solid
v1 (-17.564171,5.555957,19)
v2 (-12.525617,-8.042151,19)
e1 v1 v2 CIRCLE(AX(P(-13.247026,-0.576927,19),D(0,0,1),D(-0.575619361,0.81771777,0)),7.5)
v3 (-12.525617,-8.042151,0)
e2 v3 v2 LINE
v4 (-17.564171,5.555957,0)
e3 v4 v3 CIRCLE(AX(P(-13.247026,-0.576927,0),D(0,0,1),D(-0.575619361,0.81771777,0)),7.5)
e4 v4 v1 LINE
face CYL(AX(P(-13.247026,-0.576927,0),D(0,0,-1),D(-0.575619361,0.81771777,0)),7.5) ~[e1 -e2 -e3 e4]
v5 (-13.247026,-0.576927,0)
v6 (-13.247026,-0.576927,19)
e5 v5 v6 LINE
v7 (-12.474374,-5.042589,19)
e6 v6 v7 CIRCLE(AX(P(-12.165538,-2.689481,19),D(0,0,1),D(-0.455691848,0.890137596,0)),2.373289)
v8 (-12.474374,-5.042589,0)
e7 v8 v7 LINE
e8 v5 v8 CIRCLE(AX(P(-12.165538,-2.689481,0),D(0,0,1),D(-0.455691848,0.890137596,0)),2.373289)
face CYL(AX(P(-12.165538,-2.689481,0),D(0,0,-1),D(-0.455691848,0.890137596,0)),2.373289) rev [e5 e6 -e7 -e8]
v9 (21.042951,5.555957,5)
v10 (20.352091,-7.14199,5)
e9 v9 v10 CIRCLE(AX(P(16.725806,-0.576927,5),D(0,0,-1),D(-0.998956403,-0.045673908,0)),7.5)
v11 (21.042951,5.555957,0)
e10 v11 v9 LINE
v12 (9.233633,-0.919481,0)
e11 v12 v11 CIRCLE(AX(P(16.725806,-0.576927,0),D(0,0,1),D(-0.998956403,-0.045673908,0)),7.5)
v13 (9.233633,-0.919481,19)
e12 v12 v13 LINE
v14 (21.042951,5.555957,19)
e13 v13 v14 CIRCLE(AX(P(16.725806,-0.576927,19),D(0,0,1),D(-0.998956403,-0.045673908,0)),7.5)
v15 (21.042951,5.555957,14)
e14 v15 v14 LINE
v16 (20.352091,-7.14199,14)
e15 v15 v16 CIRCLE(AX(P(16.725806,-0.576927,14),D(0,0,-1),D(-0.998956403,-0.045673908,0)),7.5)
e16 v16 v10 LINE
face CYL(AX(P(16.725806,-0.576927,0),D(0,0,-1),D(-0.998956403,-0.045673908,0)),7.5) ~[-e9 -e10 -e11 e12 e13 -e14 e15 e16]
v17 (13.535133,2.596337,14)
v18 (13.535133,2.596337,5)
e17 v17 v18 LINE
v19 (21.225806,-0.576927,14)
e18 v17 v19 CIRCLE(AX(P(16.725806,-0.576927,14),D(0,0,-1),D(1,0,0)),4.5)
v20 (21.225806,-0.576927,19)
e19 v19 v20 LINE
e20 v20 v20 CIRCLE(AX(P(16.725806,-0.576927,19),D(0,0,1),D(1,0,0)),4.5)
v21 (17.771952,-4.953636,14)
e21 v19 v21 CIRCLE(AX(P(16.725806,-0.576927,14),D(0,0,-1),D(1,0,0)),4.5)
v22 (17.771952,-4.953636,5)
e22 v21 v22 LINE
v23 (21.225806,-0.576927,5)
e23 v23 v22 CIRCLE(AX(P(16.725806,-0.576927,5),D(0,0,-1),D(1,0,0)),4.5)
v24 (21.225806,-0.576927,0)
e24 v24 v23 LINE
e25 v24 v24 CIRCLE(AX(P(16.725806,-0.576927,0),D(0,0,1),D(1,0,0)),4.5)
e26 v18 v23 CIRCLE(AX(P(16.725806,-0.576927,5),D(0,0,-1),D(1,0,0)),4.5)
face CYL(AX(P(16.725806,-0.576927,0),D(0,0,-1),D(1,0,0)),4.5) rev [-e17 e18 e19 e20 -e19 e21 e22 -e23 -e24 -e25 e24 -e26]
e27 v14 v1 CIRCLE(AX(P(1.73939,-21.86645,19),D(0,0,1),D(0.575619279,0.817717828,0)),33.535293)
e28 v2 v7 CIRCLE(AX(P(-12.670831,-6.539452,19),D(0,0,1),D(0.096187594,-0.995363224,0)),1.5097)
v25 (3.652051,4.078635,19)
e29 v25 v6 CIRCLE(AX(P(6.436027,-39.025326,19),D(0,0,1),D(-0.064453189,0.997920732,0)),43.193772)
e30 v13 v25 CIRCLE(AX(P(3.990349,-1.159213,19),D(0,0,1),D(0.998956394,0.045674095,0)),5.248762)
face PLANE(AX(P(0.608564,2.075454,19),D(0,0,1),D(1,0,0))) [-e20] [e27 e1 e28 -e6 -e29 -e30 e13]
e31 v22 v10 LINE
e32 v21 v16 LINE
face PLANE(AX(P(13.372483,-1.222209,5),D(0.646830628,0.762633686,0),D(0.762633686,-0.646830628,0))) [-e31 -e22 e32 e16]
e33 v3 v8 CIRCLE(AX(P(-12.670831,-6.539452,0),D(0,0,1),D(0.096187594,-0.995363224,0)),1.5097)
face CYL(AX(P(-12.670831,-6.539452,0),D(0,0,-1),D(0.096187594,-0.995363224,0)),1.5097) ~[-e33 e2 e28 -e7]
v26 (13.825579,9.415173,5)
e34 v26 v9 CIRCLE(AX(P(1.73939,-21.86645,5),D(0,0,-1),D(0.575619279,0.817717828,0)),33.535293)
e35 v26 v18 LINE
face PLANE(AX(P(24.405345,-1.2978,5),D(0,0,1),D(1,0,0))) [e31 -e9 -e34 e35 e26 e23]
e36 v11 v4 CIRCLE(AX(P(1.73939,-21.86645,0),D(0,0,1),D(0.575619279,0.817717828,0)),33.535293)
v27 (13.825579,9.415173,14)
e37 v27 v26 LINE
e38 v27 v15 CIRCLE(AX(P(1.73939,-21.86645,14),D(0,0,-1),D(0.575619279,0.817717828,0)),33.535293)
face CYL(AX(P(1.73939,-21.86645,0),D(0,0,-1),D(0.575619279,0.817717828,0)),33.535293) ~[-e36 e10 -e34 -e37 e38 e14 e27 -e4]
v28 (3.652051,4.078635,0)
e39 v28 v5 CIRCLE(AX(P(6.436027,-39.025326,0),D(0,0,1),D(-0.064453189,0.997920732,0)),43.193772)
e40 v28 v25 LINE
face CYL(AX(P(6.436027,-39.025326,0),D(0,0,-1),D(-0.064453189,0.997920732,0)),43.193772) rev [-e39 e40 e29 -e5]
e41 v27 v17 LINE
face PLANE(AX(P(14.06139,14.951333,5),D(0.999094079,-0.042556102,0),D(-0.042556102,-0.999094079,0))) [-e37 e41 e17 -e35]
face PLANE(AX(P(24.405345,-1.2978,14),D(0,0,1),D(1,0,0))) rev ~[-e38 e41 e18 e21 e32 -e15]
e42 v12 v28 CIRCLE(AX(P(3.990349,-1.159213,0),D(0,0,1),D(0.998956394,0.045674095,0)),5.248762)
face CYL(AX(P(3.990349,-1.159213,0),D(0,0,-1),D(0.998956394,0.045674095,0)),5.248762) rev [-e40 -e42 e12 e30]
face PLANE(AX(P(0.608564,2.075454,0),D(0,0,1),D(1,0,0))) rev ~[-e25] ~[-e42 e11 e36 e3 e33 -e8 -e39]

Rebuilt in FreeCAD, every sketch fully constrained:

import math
import FreeCAD as App
import Part
import Sketcher
Q = App.Units.Quantity

doc = App.newDocument("Part")
body = doc.addObject("PartDesign::Body", "Body")

# Sketch on XY plane
sketch1 = body.newObject("Sketcher::SketchObject", "Sketch")
sketch1.AttachmentSupport = (doc.getObject("XY_Plane"), [""])
sketch1.MapMode = "FlatFace"
sketch1.AttachmentOffset = App.Placement(App.Vector(0, 0, 5), App.Rotation())
sketch1.addGeometry(Part.LineSegment(App.Vector(14, 15, 0), App.Vector(13, -1, 0)), False)
sketch1.addGeometry(Part.LineSegment(App.Vector(13, -1, 0), App.Vector(24, -10, 0)), False)
sketch1.addGeometry(Part.LineSegment(App.Vector(24, -10, 0), App.Vector(32, -20, 0)), False)
sketch1.addGeometry(Part.LineSegment(App.Vector(32, -20, 0), App.Vector(35, 4, 0)), False)
sketch1.addGeometry(Part.LineSegment(App.Vector(35, 4, 0), App.Vector(14, 15, 0)), False)
sketch1.addConstraint(Sketcher.Constraint("Coincident", 0, 2, 1, 1))
sketch1.addConstraint(Sketcher.Constraint("Coincident", 1, 2, 2, 1))
sketch1.addConstraint(Sketcher.Constraint("Coincident", 2, 2, 3, 1))
sketch1.addConstraint(Sketcher.Constraint("Coincident", 3, 2, 4, 1))
sketch1.addConstraint(Sketcher.Constraint("Coincident", 4, 2, 0, 1))
sketch1.addConstraint(Sketcher.Constraint("DistanceY", 2, 2, -1, 1, Q("19.545599 mm")))
sketch1.addConstraint(Sketcher.Constraint("DistanceY", 3, 2, 4, 2, Q("11.4168 mm")))
sketch1.addConstraint(Sketcher.Constraint("Distance", 1, Q("14.321539 mm")))
sketch1.addConstraint(Sketcher.Constraint("Distance", 2, Q("11.751721 mm")))
sketch1.addConstraint(Sketcher.Constraint("Distance", 4, Q("23.770731 mm")))
sketch1.addConstraint(Sketcher.Constraint("DistanceY", 0, 2, -1, 1, Q("1.222209 mm")))
sketch1.addConstraint(Sketcher.Constraint("DistanceX", -1, 1, 1, 2, Q("24.294571 mm")))
sketch1.addConstraint(Sketcher.Constraint("DistanceY", 1, 2, -1, 1, Q("10.485819 mm")))
sketch1.addConstraint(Sketcher.Constraint("DistanceX", -1, 1, 4, 2, Q("14.06139 mm")))
sketch1.addConstraint(Sketcher.Constraint("DistanceY", 1, 2, 3, 2, Q("14.020352 mm")))
pad1 = body.newObject("PartDesign::Pad", "Pad")
pad1.Profile = sketch1
pad1.Length = 9
body2 = doc.addObject("PartDesign::Body", "Body001")

# Sketch on XY plane
sketch2 = body2.newObject("Sketcher::SketchObject", "Sketch001")
sketch2.AttachmentSupport = (doc.getObject("XY_Plane001"), [""])
sketch2.MapMode = "FlatFace"
sketch2.addGeometry(Part.ArcOfCircle(Part.Circle(App.Vector(1.7, -21.9, 0), App.Vector(0, 0, 1), 33.5), math.radians(55), math.radians(125)), False)
sketch2.addGeometry(Part.ArcOfCircle(Part.Circle(App.Vector(-13.2, -0.6, 0), App.Vector(0, 0, 1), 7.5), math.radians(125), math.radians(276)), False)
sketch2.addGeometry(Part.ArcOfCircle(Part.Circle(App.Vector(-12.7, -6.5, 0), App.Vector(0, 0, 1), 1.5), math.radians(-84), math.radians(83)), False)
sketch2.addGeometry(Part.ArcOfCircle(Part.Circle(App.Vector(-12.2, -2.7, 0), App.Vector(0, 0, 1), 2.4), math.radians(117), math.radians(263)), False)
sketch2.addGeometry(Part.ArcOfCircle(Part.Circle(App.Vector(6.4, -39, 0), App.Vector(0, 0, 1), 43.2), math.radians(94), math.radians(117)), False)
sketch2.addGeometry(Part.ArcOfCircle(Part.Circle(App.Vector(4, -1.2, 0), App.Vector(0, 0, 1), 5.2), math.radians(3), math.radians(94)), False)
sketch2.addGeometry(Part.ArcOfCircle(Part.Circle(App.Vector(16.7, -0.6, 0), App.Vector(0, 0, 1), 7.5), math.radians(-177), math.radians(55)), False)
sketch2.addGeometry(Part.Circle(App.Vector(16.7, -0.6, 0), App.Vector(0, 0, 1), 4.5), False)
sketch2.addConstraint(Sketcher.Constraint("Tangent", 0, 2, 1, 1))
sketch2.addConstraint(Sketcher.Constraint("Tangent", 1, 2, 2, 1))
sketch2.addConstraint(Sketcher.Constraint("Tangent", 2, 2, 3, 2))
sketch2.addConstraint(Sketcher.Constraint("Tangent", 3, 1, 4, 2))
sketch2.addConstraint(Sketcher.Constraint("Tangent", 4, 1, 5, 2))
sketch2.addConstraint(Sketcher.Constraint("Tangent", 5, 1, 6, 1))
sketch2.addConstraint(Sketcher.Constraint("Tangent", 6, 2, 0, 1))
sketch2.addConstraint(Sketcher.Constraint("Coincident", 7, 3, 6, 3))
sketch2.addConstraint(Sketcher.Constraint("Coincident", 3, 1, 1, 3))
sketch2.addConstraint(Sketcher.Constraint("Equal", 1, 6))
sketch2.addConstraint(Sketcher.Constraint("Horizontal", 1, 3, 6, 3))
sketch2.addConstraint(Sketcher.Constraint("Diameter", 7, Q("9 mm")))
sketch2.addConstraint(Sketcher.Constraint("Radius", 1, Q("7.5 mm")))
sketch2.addConstraint(Sketcher.Constraint("Radius", 2, Q("1.5097 mm")))
sketch2.addConstraint(Sketcher.Constraint("Radius", 3, Q("2.373289 mm")))
sketch2.addConstraint(Sketcher.Constraint("Radius", 5, Q("5.248762 mm")))
sketch2.addConstraint(Sketcher.Constraint("DistanceY", 3, 3, 5, 1, Q("1.77 mm")))
sketch2.addConstraint(Sketcher.Constraint("Radius", 0, Q("33.535293 mm")))
sketch2.addConstraint(Sketcher.Constraint("Radius", 4, Q("43.193772 mm")))
sketch2.addConstraint(Sketcher.Constraint("DistanceY", 0, 3, 2, 3, Q("15.326998 mm")))
sketch2.addConstraint(Sketcher.Constraint("DistanceX", -1, 1, 0, 3, Q("1.73939 mm")))
sketch2.addConstraint(Sketcher.Constraint("DistanceY", 0, 3, -1, 1, Q("21.86645 mm")))
pad2 = body2.newObject("PartDesign::Pad", "Pad001")
pad2.Profile = sketch2
pad2.Length = 19
doc.recompute()

boolean = body2.newObject("PartDesign::Boolean", "Boolean")
boolean.Type = "Cut"
boolean.addObjects([body])

doc.recompute()
